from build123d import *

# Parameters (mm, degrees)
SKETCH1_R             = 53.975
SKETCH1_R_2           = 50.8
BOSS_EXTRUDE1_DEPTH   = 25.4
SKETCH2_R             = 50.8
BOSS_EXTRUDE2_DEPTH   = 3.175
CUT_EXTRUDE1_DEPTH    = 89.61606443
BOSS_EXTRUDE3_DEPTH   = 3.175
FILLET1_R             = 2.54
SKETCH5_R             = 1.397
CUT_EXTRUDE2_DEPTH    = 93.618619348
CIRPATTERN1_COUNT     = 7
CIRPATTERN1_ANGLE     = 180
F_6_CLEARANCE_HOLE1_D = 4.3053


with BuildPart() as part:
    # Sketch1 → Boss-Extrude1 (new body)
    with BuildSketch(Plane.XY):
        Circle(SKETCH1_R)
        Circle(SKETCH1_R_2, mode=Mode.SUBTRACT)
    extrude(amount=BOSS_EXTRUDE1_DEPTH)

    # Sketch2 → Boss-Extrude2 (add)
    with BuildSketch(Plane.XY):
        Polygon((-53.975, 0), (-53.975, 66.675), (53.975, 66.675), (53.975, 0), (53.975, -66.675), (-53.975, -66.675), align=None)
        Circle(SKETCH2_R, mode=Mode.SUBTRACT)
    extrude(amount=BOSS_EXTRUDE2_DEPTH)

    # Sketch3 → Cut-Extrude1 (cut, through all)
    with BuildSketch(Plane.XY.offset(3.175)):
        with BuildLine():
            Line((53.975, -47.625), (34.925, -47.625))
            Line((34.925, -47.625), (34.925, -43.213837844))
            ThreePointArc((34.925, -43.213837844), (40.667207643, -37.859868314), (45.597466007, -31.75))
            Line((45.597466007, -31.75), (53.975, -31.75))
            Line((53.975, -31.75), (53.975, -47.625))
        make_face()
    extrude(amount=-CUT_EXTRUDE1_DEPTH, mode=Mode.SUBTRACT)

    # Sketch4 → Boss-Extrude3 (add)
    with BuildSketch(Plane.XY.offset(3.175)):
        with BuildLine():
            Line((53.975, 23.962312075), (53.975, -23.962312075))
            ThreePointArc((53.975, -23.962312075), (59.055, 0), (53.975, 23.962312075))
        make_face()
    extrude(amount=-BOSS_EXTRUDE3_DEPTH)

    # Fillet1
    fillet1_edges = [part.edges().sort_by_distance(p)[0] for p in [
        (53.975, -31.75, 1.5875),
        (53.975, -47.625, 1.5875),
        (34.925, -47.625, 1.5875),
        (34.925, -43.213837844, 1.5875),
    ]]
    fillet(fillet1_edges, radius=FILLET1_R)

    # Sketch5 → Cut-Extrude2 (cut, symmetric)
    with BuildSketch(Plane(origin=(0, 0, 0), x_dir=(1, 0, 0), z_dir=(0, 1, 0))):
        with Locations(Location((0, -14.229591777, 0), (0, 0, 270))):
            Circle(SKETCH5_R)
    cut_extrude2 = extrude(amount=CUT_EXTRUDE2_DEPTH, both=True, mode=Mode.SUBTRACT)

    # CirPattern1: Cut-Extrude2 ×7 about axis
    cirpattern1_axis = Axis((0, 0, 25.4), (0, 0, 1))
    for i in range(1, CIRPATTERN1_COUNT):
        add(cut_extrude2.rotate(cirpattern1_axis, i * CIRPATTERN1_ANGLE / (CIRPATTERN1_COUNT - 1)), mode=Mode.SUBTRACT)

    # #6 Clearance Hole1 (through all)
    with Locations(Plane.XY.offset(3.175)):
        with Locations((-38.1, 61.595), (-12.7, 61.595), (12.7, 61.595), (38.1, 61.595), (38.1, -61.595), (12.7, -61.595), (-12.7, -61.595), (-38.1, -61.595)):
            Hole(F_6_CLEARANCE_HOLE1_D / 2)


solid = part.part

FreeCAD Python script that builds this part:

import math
import FreeCAD as App
import Part
import Sketcher
Q = App.Units.Quantity


def edges_at(feature, points):
    """Names of the edges that pass closest to the given points."""
    edges = feature.Shape.Edges
    near = lambda p: min(range(len(edges)), key=lambda i: edges[i].distToShape(Part.Vertex(*p))[0])
    return sorted({f"Edge{near(p) + 1}" for p in points})

doc = App.newDocument("Part")
body = doc.addObject("PartDesign::Body", "Body")

# Sketch on XY plane
sketch1 = body.newObject("Sketcher::SketchObject", "Sketch")
sketch1.AttachmentSupport = (doc.getObject("XY_Plane"), [""])
sketch1.MapMode = "FlatFace"
sketch1.addGeometry(Part.Circle(App.Vector(0, 0, 0), App.Vector(0, 0, 1), 54), False)
sketch1.addGeometry(Part.Circle(App.Vector(0, 0, 0), App.Vector(0, 0, 1), 51), False)
sketch1.addConstraint(Sketcher.Constraint("Coincident", 0, 3, -1, 1))
sketch1.addConstraint(Sketcher.Constraint("Coincident", 1, 3, -1, 1))
sketch1.addConstraint(Sketcher.Constraint("Diameter", 1, Q("4 in")))
sketch1.addConstraint(Sketcher.Constraint("Diameter", 0, Q("4.25 in")))
pad1 = body.newObject("PartDesign::Pad", "Pad")
pad1.Profile = sketch1
pad1.Length = Q("1 in")

# Sketch on XY plane
sketch2 = body.newObject("Sketcher::SketchObject", "Sketch001")
sketch2.AttachmentSupport = (doc.getObject("XY_Plane"), [""])
sketch2.MapMode = "FlatFace"
sketch2.addGeometry(Part.LineSegment(App.Vector(-54, 67, 0), App.Vector(-54, -67, 0)), False)
sketch2.addGeometry(Part.LineSegment(App.Vector(-54, -67, 0), App.Vector(54, -67, 0)), False)
sketch2.addGeometry(Part.LineSegment(App.Vector(54, -67, 0), App.Vector(54, 67, 0)), False)
sketch2.addGeometry(Part.LineSegment(App.Vector(54, 67, 0), App.Vector(-54, 67, 0)), False)
sketch2.addGeometry(Part.Circle(App.Vector(0, 0, 0), App.Vector(0, 0, 1), 51), False)
sketch2.addConstraint(Sketcher.Constraint("Coincident", 0, 2, 1, 1))
sketch2.addConstraint(Sketcher.Constraint("Coincident", 1, 2, 2, 1))
sketch2.addConstraint(Sketcher.Constraint("Coincident", 2, 2, 3, 1))
sketch2.addConstraint(Sketcher.Constraint("Coincident", 3, 2, 0, 1))
sketch2.addConstraint(Sketcher.Constraint("Vertical", 0))
sketch2.addConstraint(Sketcher.Constraint("Horizontal", 1))
sketch2.addConstraint(Sketcher.Constraint("Vertical", 2))
sketch2.addConstraint(Sketcher.Constraint("Horizontal", 3))
sketch2.addConstraint(Sketcher.Constraint("Coincident", 4, 3, -1, 1))
sketch2.addConstraint(Sketcher.Constraint("Symmetric", 0, 2, 2, 2, -1, 1))
sketch2.addConstraint(Sketcher.Constraint("Diameter", 4, Q("4 in")))
sketch2.addConstraint(Sketcher.Constraint("DistanceX", 1, 1, 1, 2, Q("4.25 in")))
sketch2.addConstraint(Sketcher.Constraint("DistanceY", 0, 2, 0, 1, Q("5.25 in")))
pad2 = body.newObject("PartDesign::Pad", "Pad001")
pad2.Profile = sketch2
pad2.Length = Q("0.125 in")

# Sketch on XY plane
sketch3 = body.newObject("Sketcher::SketchObject", "Sketch002")
sketch3.AttachmentSupport = (doc.getObject("XY_Plane"), [""])
sketch3.MapMode = "FlatFace"
sketch3.AttachmentOffset = App.Placement(App.Vector(0, 0, 0.125 * 25.4), App.Rotation())
sketch3.addGeometry(Part.LineSegment(App.Vector(34.9, -47.6, 0), App.Vector(54, -47.6, 0)), False)
sketch3.addGeometry(Part.LineSegment(App.Vector(54, -47.6, 0), App.Vector(54, -31.8, 0)), False)
sketch3.addGeometry(Part.LineSegment(App.Vector(54, -31.8, 0), App.Vector(45.6, -31.8, 0)), False)
sketch3.addGeometry(Part.ArcOfCircle(Part.Circle(App.Vector(0, 0, 0), App.Vector(0, 0, 1), 55.6), math.radians(-51.06), math.radians(-34.85)), False)
sketch3.addGeometry(Part.LineSegment(App.Vector(34.9, -43.2, 0), App.Vector(34.9, -47.6, 0)), False)
sketch3.addConstraint(Sketcher.Constraint("Coincident", 0, 2, 1, 1))
sketch3.addConstraint(Sketcher.Constraint("Coincident", 1, 2, 2, 1))
sketch3.addConstraint(Sketcher.Constraint("Coincident", 2, 2, 3, 2))
sketch3.addConstraint(Sketcher.Constraint("Coincident", 3, 1, 4, 1))
sketch3.addConstraint(Sketcher.Constraint("Coincident", 4, 2, 0, 1))
sketch3.addConstraint(Sketcher.Constraint("Horizontal", 0))
sketch3.addConstraint(Sketcher.Constraint("Vertical", 1))
sketch3.addConstraint(Sketcher.Constraint("Horizontal", 2))
sketch3.addConstraint(Sketcher.Constraint("Vertical", 4))
sketch3.addConstraint(Sketcher.Constraint("Coincident", 3, 3, -1, 1))
sketch3.addConstraint(Sketcher.Constraint("Radius", 3, Q("2.1875 in")))
sketch3.addConstraint(Sketcher.Constraint("DistanceX", 0, 1, 0, 2, Q("0.75 in")))
sketch3.addConstraint(Sketcher.Constraint("DistanceY", 1, 1, 1, 2, Q("0.625 in")))
sketch3.addConstraint(Sketcher.Constraint("DistanceY", 1, 2, -1, 1, Q("1.25 in")))
sketch3.addConstraint(Sketcher.Constraint("DistanceX", -1, 1, 0, 2, Q("2.125 in")))
pocket1 = body.newObject("PartDesign::Pocket", "Pocket")
pocket1.Profile = sketch3
pocket1.Type = "ThroughAll"

# Sketch on XY plane
sketch4 = body.newObject("Sketcher::SketchObject", "Sketch003")
sketch4.AttachmentSupport = (doc.getObject("XY_Plane"), [""])
sketch4.MapMode = "FlatFace"
sketch4.AttachmentOffset = App.Placement(App.Vector(0, 0, 0.125 * 25.4), App.Rotation())
sketch4.addGeometry(Part.LineSegment(App.Vector(54, 24, 0), App.Vector(54, -24, 0)), False)
sketch4.addGeometry(Part.ArcOfCircle(Part.Circle(App.Vector(0, 0, 0), App.Vector(0, 0, 1), 59), math.radians(-24), math.radians(24)), False)
sketch4.addConstraint(Sketcher.Constraint("Coincident", 0, 1, 1, 2))
sketch4.addConstraint(Sketcher.Constraint("Coincident", 1, 1, 0, 2))
sketch4.addConstraint(Sketcher.Constraint("Vertical", 0))
sketch4.addConstraint(Sketcher.Constraint("Coincident", 1, 3, -1, 1))
sketch4.addConstraint(Sketcher.Constraint("Radius", 1, Q("2.325 in")))
sketch4.addConstraint(Sketcher.Constraint("DistanceX", -1, 1, 0, 1, Q("2.125 in")))
pad3 = body.newObject("PartDesign::Pad", "Pad002")
pad3.Profile = sketch4
pad3.Length = Q("0.125 in")
pad3.Reversed = True
doc.recompute()

fillet = body.newObject("PartDesign::Fillet", "Fillet")
fillet.Base = (pad3, edges_at(pad3, [
    (53.975, -31.75, 1.587),
    (53.975, -47.625, 1.587),
    (34.925, -47.625, 1.587),
    (34.925, -43.214, 1.587),
]))
fillet.Radius = Q("0.1 in")

# Sketch on XZ plane
sketch5 = body.newObject("Sketcher::SketchObject", "Sketch004")
sketch5.AttachmentSupport = (doc.getObject("XZ_Plane"), [""])
sketch5.MapMode = "FlatFace"
sketch5.addGeometry(Part.Circle(App.Vector(0, 14.2, 0), App.Vector(0, 0, 1), 1.4), False)
sketch5.addConstraint(Sketcher.Constraint("PointOnObject", 0, 3, -2))
sketch5.addConstraint(Sketcher.Constraint("Diameter", 0, Q("0.11 in")))
sketch5.addConstraint(Sketcher.Constraint("DistanceY", -1, 1, 0, 3, 14.229592))
pocket2 = body.newObject("PartDesign::Pocket", "Pocket001")
pocket2.Profile = sketch5
pocket2.Length = 187.237239
pocket2.Midplane = True
doc.recompute()

polarpattern = body.newObject("PartDesign::PolarPattern", "PolarPattern")
polarpattern.Originals = [pocket2]
polarpattern.Axis = (doc.getObject("Z_Axis"), [""])
polarpattern.Angle = 180
polarpattern.Occurrences = 7
body.Tip = polarpattern

# Sketch on XY plane
sketch6 = body.newObject("Sketcher::SketchObject", "Sketch005")
sketch6.AttachmentSupport = (doc.getObject("XY_Plane"), [""])
sketch6.MapMode = "FlatFace"
sketch6.AttachmentOffset = App.Placement(App.Vector(0, 0, 0.125 * 25.4), App.Rotation())
sketch6.addGeometry(Part.Circle(App.Vector(-38.1, 61.6, 0), App.Vector(0, 0, 1), 2.2), False)
sketch6.addGeometry(Part.Circle(App.Vector(-12.7, 61.6, 0), App.Vector(0, 0, 1), 2.2), False)
sketch6.addGeometry(Part.Circle(App.Vector(12.7, 61.6, 0), App.Vector(0, 0, 1), 2.2), False)
sketch6.addGeometry(Part.Circle(App.Vector(38.1, 61.6, 0), App.Vector(0, 0, 1), 2.2), False)
sketch6.addGeometry(Part.Circle(App.Vector(38.1, -61.6, 0), App.Vector(0, 0, 1), 2.2), False)
sketch6.addGeometry(Part.Circle(App.Vector(12.7, -61.6, 0), App.Vector(0, 0, 1), 2.2), False)
sketch6.addGeometry(Part.Circle(App.Vector(-12.7, -61.6, 0), App.Vector(0, 0, 1), 2.2), False)
sketch6.addGeometry(Part.Circle(App.Vector(-38.1, -61.6, 0), App.Vector(0, 0, 1), 2.2), False)
sketch6.addConstraint(Sketcher.Constraint("Equal", 0, 1))
sketch6.addConstraint(Sketcher.Constraint("Equal", 1, 2))
sketch6.addConstraint(Sketcher.Constraint("Equal", 2, 3))
sketch6.addConstraint(Sketcher.Constraint("Equal", 3, 4))
sketch6.addConstraint(Sketcher.Constraint("Equal", 4, 5))
sketch6.addConstraint(Sketcher.Constraint("Equal", 5, 6))
sketch6.addConstraint(Sketcher.Constraint("Equal", 6, 7))
sketch6.addConstraint(Sketcher.Constraint("Symmetric", 0, 3, 4, 3, -1, 1))
sketch6.addConstraint(Sketcher.Constraint("Symmetric", 1, 3, 5, 3, -1, 1))
sketch6.addConstraint(Sketcher.Constraint("Symmetric", 2, 3, 6, 3, -1, 1))
sketch6.addConstraint(Sketcher.Constraint("Symmetric", 3, 3, 7, 3, -1, 1))
sketch6.addConstraint(Sketcher.Constraint("Symmetric", 1, 3, 2, 3, -2))
sketch6.addConstraint(Sketcher.Constraint("Symmetric", 0, 3, 3, 3, -2))
sketch6.addConstraint(Sketcher.Constraint("Horizontal", 0, 3, 1, 3))
sketch6.addConstraint(Sketcher.Constraint("DistanceX", 0, 3, 1, 3, Q("1 in")))
sketch6.addConstraint(Sketcher.Constraint("DistanceX", 1, 3, 2, 3, Q("1 in")))
sketch6.addConstraint(Sketcher.Constraint("Diameter", 0, Q("0.1695 in")))
sketch6.addConstraint(Sketcher.Constraint("DistanceY", 4, 3, 3, 3, Q("4.85 in")))
doc.recompute()
hole = body.newObject("PartDesign::Hole", "Hole")
hole.Profile = sketch6
hole.ThreadType = "None"
hole.Diameter = Q("0.1695 in")
hole.DepthType = "ThroughAll"

doc.recompute()
